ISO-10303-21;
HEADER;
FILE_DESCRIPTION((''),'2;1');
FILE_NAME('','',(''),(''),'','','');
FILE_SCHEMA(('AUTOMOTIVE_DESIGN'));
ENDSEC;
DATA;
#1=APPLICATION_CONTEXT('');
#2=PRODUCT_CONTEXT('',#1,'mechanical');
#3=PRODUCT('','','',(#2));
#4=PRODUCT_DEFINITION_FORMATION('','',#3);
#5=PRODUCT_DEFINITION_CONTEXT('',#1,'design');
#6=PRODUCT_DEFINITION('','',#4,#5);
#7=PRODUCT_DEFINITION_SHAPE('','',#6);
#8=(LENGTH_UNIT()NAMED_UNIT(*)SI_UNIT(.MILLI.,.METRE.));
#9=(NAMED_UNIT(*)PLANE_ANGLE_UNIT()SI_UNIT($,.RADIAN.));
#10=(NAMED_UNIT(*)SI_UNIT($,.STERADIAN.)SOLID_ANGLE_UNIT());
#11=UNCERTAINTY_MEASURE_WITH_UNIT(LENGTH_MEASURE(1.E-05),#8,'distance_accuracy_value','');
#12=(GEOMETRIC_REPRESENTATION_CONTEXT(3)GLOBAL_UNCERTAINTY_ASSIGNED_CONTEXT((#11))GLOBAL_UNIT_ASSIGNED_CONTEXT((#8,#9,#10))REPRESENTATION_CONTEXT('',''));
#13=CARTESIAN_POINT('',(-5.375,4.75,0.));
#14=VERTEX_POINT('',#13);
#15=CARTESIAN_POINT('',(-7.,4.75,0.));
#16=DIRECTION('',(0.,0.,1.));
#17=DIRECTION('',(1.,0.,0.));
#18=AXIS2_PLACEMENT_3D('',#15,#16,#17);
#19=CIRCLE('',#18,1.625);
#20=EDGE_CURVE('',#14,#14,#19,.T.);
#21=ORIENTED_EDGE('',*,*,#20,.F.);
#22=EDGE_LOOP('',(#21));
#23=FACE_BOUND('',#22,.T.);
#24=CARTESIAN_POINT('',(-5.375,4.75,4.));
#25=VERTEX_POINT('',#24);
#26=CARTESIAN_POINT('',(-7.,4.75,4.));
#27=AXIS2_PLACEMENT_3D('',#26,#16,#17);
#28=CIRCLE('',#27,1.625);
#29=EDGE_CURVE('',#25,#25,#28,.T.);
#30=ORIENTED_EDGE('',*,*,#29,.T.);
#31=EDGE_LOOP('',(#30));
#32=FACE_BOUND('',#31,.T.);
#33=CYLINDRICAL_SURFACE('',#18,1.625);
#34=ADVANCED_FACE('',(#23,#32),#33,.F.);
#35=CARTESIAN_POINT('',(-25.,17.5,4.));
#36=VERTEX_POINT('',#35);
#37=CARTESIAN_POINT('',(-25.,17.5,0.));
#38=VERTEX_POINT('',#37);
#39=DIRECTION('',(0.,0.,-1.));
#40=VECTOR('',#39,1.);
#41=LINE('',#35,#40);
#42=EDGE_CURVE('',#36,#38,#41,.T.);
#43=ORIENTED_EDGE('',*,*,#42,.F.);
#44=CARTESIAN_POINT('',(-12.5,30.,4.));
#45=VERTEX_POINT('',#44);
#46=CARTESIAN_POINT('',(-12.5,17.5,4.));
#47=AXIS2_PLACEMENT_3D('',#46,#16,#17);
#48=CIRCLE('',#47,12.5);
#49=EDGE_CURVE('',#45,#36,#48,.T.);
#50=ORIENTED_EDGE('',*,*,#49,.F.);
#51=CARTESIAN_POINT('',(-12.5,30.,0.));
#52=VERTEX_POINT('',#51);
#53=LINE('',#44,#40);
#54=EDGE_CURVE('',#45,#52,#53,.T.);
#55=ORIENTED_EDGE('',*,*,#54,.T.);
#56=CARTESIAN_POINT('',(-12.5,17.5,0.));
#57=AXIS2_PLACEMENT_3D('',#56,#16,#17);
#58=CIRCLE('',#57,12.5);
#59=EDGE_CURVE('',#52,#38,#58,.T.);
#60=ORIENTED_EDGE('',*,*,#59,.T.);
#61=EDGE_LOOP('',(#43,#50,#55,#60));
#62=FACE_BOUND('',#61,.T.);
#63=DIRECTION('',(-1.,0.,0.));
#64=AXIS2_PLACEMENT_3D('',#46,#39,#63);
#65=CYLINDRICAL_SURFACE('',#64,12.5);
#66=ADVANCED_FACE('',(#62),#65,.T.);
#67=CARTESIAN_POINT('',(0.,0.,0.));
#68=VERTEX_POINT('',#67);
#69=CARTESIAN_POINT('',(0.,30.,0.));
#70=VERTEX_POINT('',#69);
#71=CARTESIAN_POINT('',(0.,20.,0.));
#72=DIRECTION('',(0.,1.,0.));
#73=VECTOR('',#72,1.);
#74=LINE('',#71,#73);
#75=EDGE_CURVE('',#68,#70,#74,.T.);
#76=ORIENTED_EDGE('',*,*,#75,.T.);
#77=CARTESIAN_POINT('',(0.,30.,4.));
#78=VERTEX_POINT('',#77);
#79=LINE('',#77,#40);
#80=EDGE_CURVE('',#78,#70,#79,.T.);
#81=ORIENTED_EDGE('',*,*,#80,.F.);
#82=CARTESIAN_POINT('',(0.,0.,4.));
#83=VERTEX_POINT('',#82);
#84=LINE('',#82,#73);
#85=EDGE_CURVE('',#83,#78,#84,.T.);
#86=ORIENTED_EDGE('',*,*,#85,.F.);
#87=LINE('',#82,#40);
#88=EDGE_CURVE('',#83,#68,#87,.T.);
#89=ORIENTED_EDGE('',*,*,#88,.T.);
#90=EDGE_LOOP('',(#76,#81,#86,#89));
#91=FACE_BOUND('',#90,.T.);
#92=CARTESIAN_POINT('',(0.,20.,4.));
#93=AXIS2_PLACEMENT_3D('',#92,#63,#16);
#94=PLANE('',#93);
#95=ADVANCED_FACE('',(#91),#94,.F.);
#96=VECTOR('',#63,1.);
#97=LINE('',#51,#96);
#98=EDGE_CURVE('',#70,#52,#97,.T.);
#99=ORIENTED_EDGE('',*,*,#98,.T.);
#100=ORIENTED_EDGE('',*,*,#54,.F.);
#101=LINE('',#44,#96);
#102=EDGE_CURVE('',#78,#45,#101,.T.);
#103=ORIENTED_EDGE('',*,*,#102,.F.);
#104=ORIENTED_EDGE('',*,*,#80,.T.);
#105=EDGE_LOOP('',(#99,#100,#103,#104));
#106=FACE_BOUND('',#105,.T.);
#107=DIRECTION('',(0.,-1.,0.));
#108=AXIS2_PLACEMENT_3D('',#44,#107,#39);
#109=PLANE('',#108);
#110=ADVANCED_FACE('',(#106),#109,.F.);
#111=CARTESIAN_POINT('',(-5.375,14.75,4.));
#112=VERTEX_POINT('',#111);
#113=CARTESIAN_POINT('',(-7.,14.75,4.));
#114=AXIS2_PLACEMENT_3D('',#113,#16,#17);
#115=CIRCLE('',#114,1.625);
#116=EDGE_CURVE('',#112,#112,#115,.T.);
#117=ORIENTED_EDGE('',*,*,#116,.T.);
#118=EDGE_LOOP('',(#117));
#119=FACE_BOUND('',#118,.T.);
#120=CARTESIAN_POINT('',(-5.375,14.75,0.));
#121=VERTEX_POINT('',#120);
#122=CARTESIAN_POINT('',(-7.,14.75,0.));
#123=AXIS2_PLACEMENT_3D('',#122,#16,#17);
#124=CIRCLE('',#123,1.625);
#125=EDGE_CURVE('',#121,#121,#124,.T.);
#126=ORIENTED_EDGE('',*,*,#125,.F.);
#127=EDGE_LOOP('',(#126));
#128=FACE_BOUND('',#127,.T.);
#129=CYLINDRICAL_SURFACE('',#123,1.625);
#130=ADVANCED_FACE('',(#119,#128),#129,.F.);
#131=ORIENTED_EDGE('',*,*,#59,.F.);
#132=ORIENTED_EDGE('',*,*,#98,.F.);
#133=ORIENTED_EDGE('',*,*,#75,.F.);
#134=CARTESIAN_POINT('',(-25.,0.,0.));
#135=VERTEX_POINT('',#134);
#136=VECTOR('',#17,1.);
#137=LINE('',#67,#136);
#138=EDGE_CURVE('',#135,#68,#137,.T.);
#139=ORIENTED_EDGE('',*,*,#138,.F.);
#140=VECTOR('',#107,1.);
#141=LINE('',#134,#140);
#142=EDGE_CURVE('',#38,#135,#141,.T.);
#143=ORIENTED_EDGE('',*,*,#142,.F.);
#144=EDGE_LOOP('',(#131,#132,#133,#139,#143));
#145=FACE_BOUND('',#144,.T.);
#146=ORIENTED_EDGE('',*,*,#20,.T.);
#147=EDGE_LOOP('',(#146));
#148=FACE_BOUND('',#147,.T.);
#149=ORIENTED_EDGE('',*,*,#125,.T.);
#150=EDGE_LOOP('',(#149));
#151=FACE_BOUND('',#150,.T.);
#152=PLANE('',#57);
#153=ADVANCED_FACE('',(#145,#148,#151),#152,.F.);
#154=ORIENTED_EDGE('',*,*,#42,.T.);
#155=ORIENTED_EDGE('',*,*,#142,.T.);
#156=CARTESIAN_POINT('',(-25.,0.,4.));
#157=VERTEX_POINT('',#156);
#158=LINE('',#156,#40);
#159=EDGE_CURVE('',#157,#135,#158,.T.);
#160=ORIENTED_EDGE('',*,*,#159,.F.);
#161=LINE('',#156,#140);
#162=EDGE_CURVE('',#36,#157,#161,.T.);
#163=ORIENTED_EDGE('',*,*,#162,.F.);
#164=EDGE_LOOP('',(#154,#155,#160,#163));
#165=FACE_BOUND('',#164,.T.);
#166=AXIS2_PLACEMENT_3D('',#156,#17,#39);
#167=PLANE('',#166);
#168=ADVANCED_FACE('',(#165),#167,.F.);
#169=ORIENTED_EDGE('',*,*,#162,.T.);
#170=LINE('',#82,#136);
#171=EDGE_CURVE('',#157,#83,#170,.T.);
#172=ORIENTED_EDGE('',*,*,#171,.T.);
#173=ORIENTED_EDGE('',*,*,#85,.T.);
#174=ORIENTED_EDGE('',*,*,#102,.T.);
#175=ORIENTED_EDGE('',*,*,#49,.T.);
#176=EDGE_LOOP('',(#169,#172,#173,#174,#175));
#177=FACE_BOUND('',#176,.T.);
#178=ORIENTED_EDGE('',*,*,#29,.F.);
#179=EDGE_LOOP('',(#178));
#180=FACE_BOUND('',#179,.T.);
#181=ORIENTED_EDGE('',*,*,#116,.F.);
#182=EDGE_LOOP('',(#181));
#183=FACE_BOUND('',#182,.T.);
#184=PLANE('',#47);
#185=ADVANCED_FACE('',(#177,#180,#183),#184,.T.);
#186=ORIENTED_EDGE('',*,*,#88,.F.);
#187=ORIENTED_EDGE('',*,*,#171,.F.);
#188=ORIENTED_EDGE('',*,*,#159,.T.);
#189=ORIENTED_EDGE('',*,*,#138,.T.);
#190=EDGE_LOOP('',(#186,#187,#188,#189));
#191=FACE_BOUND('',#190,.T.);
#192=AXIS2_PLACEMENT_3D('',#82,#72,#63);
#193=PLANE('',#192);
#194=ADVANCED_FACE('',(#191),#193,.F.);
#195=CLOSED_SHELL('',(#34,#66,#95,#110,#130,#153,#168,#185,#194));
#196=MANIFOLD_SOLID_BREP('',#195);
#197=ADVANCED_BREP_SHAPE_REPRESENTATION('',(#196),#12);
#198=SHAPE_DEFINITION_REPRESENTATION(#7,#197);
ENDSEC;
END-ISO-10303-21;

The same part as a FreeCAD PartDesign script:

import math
import FreeCAD as App
import Part
import Sketcher
from FreeCAD import Vector

doc = App.newDocument("Part")
params = doc.addObject("Spreadsheet::Sheet", "Params")
for row, (alias, value) in enumerate([
    ("sketch1_radius", "12.5 mm"),
    ("sketch1_width", "25 mm"),
    ("sketch1_height", "30 mm"),
    ("pad1_length", "4 mm"),
    ("sketch2_diameter", "3.25 mm"),
], start=1):
    params.set(f"A{row}", alias)
    params.set(f"B{row}", "=" + value)
    params.setAlias(f"B{row}", alias)

body = doc.addObject("PartDesign::Body", "Body")

# Sketch on XY plane
sketch1 = doc.addObject("Sketcher::SketchObject", "Sketch")
body.addObject(sketch1)
sketch1.AttachmentSupport = (doc.XY_Plane, [""])
sketch1.MapMode = "FlatFace"
sketch1.addGeometry(Part.LineSegment(Vector(0, 30, 0), Vector(-12, 30, 0)), False)
sketch1.addGeometry(Part.ArcOfCircle(Part.Circle(Vector(-13, 18, 0), Vector(0, 0, 1), 12), math.radians(90), math.radians(180)), False)
sketch1.addGeometry(Part.LineSegment(Vector(-25, 18, 0), Vector(-25, 0, 0)), False)
sketch1.addGeometry(Part.LineSegment(Vector(-25, 0, 0), Vector(0, 0, 0)), False)
sketch1.addGeometry(Part.LineSegment(Vector(0, 0, 0), Vector(0, 30, 0)), False)
sketch1.addConstraint(Sketcher.Constraint("Tangent", 0, 2, 1, 1))
sketch1.addConstraint(Sketcher.Constraint("Tangent", 1, 2, 2, 1))
sketch1.addConstraint(Sketcher.Constraint("Coincident", 2, 2, 3, 1))
sketch1.addConstraint(Sketcher.Constraint("Coincident", 3, 2, 4, 1))
sketch1.addConstraint(Sketcher.Constraint("Coincident", 4, 2, 0, 1))
sketch1.addConstraint(Sketcher.Constraint("Horizontal", 0))
sketch1.addConstraint(Sketcher.Constraint("Vertical", 2))
sketch1.addConstraint(Sketcher.Constraint("Horizontal", 3))
sketch1.addConstraint(Sketcher.Constraint("Vertical", 4))
sketch1.addConstraint(Sketcher.Constraint("Coincident", 3, 2, -1, 1))
sketch1.addConstraint(Sketcher.Constraint("Radius", 1, 12.5))
sketch1.addConstraint(Sketcher.Constraint("DistanceX", 3, 1, 3, 2, 25.0))
sketch1.addConstraint(Sketcher.Constraint("DistanceY", 4, 1, 4, 2, 30.0))
sketch1.setExpression("Constraints[10]", "Params.sketch1_radius")
sketch1.setExpression("Constraints[11]", "Params.sketch1_width")
sketch1.setExpression("Constraints[12]", "Params.sketch1_height")
pad1 = doc.addObject("PartDesign::Pad", "Pad")
body.addObject(pad1)
pad1.Profile = sketch1
pad1.setExpression("Length", "Params.pad1_length")

# Sketch on XY plane
sketch2 = doc.addObject("Sketcher::SketchObject", "Sketch001")
body.addObject(sketch2)
sketch2.AttachmentSupport = (doc.XY_Plane, [""])
sketch2.MapMode = "FlatFace"
sketch2.AttachmentOffset = App.Placement(Vector(0, 0, 4), App.Rotation())
sketch2.addGeometry(Part.Circle(Vector(-7, 14.8, 0), Vector(0, 0, 1), 1.6), False)
sketch2.addGeometry(Part.Circle(Vector(-7, 4.8, 0), Vector(0, 0, 1), 1.6), False)
sketch2.addConstraint(Sketcher.Constraint("Equal", 0, 1))
sketch2.addConstraint(Sketcher.Constraint("Vertical", 0, 3, 1, 3))
sketch2.addConstraint(Sketcher.Constraint("Diameter", 0, 3.25))
sketch2.addConstraint(Sketcher.Constraint("DistanceX", 0, 3, -1, 1, 7.0))
sketch2.addConstraint(Sketcher.Constraint("DistanceY", 1, 3, 0, 3, 10.0))
sketch2.addConstraint(Sketcher.Constraint("DistanceY", -1, 1, 0, 3, 14.75))
sketch2.setExpression("Constraints[2]", "Params.sketch2_diameter")
pocket1 = doc.addObject("PartDesign::Pocket", "Pocket")
body.addObject(pocket1)
pocket1.Profile = sketch2
pocket1.Type = "ThroughAll"

doc.recompute()
